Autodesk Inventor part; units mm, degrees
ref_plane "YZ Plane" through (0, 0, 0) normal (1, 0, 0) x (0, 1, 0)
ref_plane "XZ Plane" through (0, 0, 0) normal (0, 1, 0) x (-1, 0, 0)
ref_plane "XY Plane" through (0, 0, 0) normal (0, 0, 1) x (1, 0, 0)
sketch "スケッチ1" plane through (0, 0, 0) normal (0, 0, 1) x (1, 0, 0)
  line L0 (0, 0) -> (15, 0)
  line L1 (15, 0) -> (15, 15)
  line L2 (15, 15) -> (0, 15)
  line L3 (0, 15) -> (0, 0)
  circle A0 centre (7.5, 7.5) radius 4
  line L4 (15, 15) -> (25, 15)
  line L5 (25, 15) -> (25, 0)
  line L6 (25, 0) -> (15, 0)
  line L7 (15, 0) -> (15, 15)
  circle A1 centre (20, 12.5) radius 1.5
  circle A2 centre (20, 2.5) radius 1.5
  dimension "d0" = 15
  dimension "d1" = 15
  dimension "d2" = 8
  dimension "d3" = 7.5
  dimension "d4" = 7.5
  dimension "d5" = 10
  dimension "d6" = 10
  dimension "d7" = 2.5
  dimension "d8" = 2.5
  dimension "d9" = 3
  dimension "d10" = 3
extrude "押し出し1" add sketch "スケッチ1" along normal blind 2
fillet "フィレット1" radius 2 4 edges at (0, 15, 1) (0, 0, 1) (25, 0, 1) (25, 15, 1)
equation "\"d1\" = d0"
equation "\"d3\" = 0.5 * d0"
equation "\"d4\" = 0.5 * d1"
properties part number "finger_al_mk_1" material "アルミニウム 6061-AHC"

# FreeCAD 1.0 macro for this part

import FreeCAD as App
import Part
import Sketcher
from FreeCAD import Vector


def edges_at(feature, points):
    """Names of the edges that pass closest to the given points."""
    edges = feature.Shape.Edges
    near = lambda p: min(range(len(edges)), key=lambda i: edges[i].distToShape(Part.Vertex(*p))[0])
    return sorted({f"Edge{near(p) + 1}" for p in points})


def add_polygon(sketch, points):
    """Adds a closed chain of lines whose ends are joined by coincident constraints."""
    first, n = sketch.GeometryCount, len(points)
    for a, b in zip(points, points[1:] + points[:1]):
        sketch.addGeometry(Part.LineSegment(App.Vector(*a, 0), App.Vector(*b, 0)), False)
    for i in range(n):
        sketch.addConstraint(Sketcher.Constraint("Coincident", first + i, 2, first + (i + 1) % n, 1))

doc = App.newDocument("Part")
params = doc.addObject("Spreadsheet::Sheet", "Params")
for row, (alias, value) in enumerate([
    ("sketch1_diameter", "8 mm"),
    ("sketch1_diameter2", "3 mm"),
    ("sketch1_height", "15 mm"),
    ("sketch1_width", "25 mm"),
    ("pad1_length", "2 mm"),
    ("fillet_radius", "2 mm"),
], start=1):
    params.set(f"A{row}", alias)
    params.set(f"B{row}", "=" + value)
    params.setAlias(f"B{row}", alias)

body = doc.addObject("PartDesign::Body", "Body")

# Sketch on XY plane
sketch1 = doc.addObject("Sketcher::SketchObject", "Sketch")
body.addObject(sketch1)
sketch1.AttachmentSupport = (doc.XY_Plane, [""])
sketch1.MapMode = "FlatFace"
add_polygon(sketch1, [(0, 15), (0, 0), (25, 0), (25, 15)])  # lines 0-3
sketch1.addGeometry(Part.Circle(Vector(7.5, 7.5, 0), Vector(0, 0, 1), 4), False)  # 4
sketch1.addGeometry(Part.Circle(Vector(20, 12.5, 0), Vector(0, 0, 1), 1.5), False)  # 5
sketch1.addGeometry(Part.Circle(Vector(20, 2.5, 0), Vector(0, 0, 1), 1.5), False)  # 6
sketch1.addConstraint([
    Sketcher.Constraint("Vertical", 0),
    Sketcher.Constraint("Horizontal", 1),
    Sketcher.Constraint("Vertical", 2),
    Sketcher.Constraint("Horizontal", 3),
    Sketcher.Constraint("Coincident", 0, 2, -1, 1),
    Sketcher.Constraint("Equal", 5, 6),
    Sketcher.Constraint("Vertical", 5, 3, 6, 3),
    Sketcher.Constraint("Diameter", 4, 8.0),
    Sketcher.Constraint("Diameter", 5, 3.0),
    Sketcher.Constraint("DistanceY", 0, 2, 0, 1, 15.0),
    Sketcher.Constraint("DistanceY", 6, 3, 5, 3, 10.0),
    Sketcher.Constraint("DistanceX", -1, 1, 4, 3, 7.5),
    Sketcher.Constraint("DistanceY", -1, 1, 4, 3, 7.5),
    Sketcher.Constraint("DistanceY", -1, 1, 6, 3, 2.5),
    Sketcher.Constraint("DistanceX", 1, 1, 1, 2, 25.0),
    Sketcher.Constraint("DistanceX", -1, 1, 5, 3, 20.0),
])
sketch1.setExpression("Constraints[11]", "Params.sketch1_diameter")
sketch1.setExpression("Constraints[12]", "Params.sketch1_diameter2")
sketch1.setExpression("Constraints[13]", "Params.sketch1_height")
sketch1.setExpression("Constraints[18]", "Params.sketch1_width")
pad1 = doc.addObject("PartDesign::Pad", "Pad")
body.addObject(pad1)
pad1.Profile = sketch1
pad1.setExpression("Length", "Params.pad1_length")
doc.recompute()

fillet = doc.addObject("PartDesign::Fillet", "Fillet")
body.addObject(fillet)
fillet.Base = (pad1, edges_at(pad1, [
    (0, 15, 1),
    (0, 0, 1),
    (25, 0, 1),
    (25, 15, 1),
]))
fillet.setExpression("Radius", "Params.fillet_radius")

doc.recompute()
